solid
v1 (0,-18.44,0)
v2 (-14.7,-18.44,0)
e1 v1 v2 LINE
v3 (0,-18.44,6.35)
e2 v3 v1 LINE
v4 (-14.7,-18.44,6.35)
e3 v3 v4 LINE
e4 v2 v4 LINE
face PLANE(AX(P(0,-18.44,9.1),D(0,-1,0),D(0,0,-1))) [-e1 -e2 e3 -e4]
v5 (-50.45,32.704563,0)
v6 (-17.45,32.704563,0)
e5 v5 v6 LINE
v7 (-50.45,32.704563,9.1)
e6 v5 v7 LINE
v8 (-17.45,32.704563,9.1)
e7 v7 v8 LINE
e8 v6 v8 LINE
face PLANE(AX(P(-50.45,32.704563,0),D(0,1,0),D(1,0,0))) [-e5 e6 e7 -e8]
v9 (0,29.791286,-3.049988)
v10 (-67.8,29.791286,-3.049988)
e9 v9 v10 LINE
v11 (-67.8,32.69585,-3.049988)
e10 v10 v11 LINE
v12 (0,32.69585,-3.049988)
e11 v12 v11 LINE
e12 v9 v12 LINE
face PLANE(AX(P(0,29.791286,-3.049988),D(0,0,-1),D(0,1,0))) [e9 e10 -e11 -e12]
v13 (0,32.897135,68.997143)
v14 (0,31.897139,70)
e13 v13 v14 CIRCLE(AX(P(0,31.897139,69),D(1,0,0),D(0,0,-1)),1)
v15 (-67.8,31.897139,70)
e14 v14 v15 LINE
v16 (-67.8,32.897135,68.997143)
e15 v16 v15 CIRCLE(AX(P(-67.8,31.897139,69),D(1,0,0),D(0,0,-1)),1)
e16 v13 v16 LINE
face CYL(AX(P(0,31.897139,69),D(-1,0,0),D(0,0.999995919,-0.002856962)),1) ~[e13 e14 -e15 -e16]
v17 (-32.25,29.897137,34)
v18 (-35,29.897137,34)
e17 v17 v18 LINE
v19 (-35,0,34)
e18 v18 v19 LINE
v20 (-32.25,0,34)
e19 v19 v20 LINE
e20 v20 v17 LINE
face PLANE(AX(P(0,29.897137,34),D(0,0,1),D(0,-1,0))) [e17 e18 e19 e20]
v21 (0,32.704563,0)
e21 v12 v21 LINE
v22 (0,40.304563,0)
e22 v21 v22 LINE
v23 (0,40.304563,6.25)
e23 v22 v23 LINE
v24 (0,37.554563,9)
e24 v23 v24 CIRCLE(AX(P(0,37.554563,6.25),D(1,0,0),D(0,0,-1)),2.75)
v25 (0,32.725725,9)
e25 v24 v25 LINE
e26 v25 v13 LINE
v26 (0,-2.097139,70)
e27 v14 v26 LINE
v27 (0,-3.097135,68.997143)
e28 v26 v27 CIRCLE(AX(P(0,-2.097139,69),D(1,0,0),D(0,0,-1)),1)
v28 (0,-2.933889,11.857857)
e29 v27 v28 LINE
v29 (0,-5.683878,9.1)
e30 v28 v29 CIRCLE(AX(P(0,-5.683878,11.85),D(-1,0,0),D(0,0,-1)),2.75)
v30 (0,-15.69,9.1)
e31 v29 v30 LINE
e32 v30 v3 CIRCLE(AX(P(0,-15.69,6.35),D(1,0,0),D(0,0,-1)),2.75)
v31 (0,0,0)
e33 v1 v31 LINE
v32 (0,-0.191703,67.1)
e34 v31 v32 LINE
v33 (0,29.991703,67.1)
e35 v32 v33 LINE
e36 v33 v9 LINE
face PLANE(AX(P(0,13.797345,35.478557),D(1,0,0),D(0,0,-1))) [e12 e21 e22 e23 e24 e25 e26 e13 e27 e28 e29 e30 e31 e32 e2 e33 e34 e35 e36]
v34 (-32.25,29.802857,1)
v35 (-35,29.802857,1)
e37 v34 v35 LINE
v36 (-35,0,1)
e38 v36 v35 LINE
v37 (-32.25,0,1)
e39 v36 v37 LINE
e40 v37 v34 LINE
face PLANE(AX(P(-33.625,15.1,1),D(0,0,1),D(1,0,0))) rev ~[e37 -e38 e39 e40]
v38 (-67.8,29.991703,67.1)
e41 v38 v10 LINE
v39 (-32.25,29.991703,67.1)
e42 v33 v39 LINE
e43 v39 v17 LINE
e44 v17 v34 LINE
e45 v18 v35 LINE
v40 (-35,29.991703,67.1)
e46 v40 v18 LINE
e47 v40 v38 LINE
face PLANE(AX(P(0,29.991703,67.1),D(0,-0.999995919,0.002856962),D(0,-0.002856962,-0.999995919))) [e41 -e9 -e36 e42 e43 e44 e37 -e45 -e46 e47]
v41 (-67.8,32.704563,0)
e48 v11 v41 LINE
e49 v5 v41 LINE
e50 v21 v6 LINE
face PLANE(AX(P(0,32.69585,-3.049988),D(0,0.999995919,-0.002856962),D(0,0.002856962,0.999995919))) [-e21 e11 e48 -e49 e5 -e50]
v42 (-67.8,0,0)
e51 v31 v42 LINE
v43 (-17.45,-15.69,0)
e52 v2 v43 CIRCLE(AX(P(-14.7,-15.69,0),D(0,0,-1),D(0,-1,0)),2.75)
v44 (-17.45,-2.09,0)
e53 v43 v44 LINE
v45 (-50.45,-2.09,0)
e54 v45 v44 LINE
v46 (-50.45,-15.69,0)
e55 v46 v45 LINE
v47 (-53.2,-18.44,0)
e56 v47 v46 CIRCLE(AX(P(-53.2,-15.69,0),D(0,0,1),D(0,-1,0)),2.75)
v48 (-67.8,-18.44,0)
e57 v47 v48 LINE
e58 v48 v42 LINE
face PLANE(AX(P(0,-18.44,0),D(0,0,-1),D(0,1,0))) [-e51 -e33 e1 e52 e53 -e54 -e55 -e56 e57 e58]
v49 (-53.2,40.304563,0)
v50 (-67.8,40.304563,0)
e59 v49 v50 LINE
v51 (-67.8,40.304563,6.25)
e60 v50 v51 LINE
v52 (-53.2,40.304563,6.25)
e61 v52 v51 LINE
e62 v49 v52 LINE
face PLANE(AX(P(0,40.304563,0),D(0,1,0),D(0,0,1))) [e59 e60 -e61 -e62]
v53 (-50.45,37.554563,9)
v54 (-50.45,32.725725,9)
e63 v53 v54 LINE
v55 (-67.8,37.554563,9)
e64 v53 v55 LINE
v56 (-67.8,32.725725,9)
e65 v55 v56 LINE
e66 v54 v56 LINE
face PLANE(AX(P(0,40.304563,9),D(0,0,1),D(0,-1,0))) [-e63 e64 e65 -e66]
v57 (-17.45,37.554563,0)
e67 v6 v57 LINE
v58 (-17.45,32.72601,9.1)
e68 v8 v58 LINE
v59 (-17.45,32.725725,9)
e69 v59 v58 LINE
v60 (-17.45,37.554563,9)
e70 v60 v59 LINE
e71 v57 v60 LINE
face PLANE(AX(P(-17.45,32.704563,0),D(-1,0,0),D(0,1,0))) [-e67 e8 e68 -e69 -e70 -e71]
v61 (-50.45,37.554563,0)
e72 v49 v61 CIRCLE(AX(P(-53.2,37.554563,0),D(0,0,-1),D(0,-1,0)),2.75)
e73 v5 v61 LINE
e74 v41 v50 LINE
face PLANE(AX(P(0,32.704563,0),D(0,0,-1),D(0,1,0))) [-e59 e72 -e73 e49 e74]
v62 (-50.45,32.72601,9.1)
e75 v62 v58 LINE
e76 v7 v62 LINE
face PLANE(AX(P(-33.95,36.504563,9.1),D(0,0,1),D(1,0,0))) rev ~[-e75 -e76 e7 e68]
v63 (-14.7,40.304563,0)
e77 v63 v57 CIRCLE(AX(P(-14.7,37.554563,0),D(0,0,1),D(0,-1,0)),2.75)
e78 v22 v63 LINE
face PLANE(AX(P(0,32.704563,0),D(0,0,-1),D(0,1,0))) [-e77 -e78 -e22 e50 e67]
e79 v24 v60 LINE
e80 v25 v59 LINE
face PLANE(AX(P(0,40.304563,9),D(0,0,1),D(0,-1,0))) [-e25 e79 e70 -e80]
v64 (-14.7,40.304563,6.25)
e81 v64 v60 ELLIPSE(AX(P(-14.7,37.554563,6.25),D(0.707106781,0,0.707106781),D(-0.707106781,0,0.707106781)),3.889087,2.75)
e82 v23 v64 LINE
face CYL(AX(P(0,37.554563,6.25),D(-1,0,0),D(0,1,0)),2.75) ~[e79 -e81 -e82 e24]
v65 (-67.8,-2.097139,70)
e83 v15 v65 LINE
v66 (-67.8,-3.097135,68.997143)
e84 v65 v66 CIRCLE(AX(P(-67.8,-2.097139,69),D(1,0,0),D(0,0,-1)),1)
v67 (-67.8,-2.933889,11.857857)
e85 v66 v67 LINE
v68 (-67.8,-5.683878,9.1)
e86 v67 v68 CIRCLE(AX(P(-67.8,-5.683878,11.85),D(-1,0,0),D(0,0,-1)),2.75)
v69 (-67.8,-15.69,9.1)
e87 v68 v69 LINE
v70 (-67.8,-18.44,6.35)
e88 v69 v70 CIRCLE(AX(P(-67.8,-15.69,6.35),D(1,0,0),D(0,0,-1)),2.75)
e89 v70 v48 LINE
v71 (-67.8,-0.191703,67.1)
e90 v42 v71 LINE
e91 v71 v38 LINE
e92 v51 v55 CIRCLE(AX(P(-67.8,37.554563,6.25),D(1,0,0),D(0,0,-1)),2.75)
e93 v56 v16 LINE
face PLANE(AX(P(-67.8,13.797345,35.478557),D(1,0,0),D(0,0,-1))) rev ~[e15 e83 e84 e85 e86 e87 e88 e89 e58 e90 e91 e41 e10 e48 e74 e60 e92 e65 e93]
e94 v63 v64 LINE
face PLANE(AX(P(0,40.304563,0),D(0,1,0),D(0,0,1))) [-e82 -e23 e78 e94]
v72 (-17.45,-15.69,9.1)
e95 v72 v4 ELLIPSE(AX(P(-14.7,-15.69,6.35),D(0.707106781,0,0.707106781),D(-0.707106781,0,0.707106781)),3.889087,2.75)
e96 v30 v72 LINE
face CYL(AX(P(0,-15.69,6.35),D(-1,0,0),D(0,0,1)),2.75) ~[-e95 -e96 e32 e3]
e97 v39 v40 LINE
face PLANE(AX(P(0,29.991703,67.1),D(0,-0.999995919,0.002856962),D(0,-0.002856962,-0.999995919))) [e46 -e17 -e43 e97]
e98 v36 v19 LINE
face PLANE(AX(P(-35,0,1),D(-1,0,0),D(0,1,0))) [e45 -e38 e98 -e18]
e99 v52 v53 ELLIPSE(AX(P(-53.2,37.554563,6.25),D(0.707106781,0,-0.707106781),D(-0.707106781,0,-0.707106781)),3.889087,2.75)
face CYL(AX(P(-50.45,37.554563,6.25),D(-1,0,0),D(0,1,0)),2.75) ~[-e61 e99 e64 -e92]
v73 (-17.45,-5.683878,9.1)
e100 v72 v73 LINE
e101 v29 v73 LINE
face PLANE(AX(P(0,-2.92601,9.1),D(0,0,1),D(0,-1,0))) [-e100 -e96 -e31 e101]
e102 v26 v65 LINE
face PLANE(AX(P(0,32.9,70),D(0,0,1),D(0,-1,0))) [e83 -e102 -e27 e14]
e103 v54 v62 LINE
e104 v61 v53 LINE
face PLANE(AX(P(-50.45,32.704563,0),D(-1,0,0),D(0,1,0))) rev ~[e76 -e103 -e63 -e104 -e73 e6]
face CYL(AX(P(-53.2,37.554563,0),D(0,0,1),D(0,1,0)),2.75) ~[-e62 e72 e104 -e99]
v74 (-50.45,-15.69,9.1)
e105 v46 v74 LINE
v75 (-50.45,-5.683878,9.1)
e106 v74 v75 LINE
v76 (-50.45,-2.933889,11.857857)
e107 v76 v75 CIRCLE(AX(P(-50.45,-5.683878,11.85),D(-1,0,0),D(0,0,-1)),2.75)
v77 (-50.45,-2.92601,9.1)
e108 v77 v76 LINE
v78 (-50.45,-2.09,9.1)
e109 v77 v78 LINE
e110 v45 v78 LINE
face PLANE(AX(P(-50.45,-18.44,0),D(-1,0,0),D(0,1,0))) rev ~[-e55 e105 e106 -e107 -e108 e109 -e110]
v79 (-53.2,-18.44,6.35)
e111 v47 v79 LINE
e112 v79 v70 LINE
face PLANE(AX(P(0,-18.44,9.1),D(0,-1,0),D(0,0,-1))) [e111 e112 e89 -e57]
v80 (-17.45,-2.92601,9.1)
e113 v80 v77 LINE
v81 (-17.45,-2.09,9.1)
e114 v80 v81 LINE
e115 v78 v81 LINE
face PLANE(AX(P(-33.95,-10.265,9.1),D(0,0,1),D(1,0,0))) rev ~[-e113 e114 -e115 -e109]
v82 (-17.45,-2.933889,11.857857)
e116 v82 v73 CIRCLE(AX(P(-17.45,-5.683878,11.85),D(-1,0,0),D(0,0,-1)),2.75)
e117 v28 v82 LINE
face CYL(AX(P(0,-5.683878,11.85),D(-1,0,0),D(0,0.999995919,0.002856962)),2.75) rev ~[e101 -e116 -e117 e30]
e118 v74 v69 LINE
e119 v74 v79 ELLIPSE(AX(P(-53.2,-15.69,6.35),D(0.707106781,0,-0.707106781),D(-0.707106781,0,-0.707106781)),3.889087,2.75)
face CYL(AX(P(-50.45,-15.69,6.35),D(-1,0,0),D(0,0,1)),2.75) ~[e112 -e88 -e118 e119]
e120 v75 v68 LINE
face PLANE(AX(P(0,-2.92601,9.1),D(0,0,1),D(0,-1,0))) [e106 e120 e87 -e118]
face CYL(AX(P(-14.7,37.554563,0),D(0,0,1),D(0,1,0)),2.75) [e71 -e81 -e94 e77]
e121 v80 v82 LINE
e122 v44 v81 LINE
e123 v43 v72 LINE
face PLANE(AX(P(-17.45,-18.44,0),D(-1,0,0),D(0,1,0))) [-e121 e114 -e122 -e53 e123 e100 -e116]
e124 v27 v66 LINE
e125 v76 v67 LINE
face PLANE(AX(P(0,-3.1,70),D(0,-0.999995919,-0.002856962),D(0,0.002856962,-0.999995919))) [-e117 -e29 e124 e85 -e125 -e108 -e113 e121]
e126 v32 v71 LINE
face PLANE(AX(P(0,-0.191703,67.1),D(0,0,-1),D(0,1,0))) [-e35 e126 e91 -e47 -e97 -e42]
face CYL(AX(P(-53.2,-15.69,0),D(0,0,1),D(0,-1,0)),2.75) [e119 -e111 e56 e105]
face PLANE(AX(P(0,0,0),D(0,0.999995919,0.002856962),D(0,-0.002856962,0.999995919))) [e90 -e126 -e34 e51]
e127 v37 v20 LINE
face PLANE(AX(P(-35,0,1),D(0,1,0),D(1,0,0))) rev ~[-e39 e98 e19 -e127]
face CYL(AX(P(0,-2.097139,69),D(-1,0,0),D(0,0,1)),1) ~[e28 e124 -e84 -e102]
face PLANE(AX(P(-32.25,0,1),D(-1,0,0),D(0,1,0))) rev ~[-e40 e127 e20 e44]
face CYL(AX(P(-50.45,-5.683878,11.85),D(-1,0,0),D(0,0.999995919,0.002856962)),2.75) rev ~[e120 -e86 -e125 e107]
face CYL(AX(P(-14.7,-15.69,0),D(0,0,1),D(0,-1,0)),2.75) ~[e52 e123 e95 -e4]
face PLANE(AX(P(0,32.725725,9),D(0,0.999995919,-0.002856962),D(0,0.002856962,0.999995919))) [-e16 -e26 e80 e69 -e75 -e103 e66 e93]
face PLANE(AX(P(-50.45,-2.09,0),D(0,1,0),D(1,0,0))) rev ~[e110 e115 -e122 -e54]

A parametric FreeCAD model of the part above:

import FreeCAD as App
import Part
import Sketcher
Q = App.Units.Quantity


def edges_at(feature, points):
    """Names of the edges that pass closest to the given points."""
    edges = feature.Shape.Edges
    near = lambda p: min(range(len(edges)), key=lambda i: edges[i].distToShape(Part.Vertex(*p))[0])
    return sorted({f"Edge{near(p) + 1}" for p in points})


def add_polygon(sketch, points):
    """Adds a closed chain of lines whose ends are joined by coincident constraints."""
    first, n = sketch.GeometryCount, len(points)
    for a, b in zip(points, points[1:] + points[:1]):
        sketch.addGeometry(Part.LineSegment(App.Vector(*a, 0), App.Vector(*b, 0)), False)
    for i in range(n):
        sketch.addConstraint(Sketcher.Constraint("Coincident", first + i, 2, first + (i + 1) % n, 1))

doc = App.newDocument("Part")
body = doc.addObject("PartDesign::Body", "Body")

# Sketch on YZ plane
sketch1 = body.newObject("Sketcher::SketchObject", "Sketch")
sketch1.AttachmentSupport = (doc.getObject("YZ_Plane"), [""])
sketch1.MapMode = "FlatFace"
add_polygon(sketch1, [(29.991703, 67.1), (29.791286, -3.049988), (32.69585, -3.049988), (32.704563, 0), (40.304563, 0), (40.304563, 9), (32.725725, 9), (32.9, 70), (-3.1, 70), (-2.92601, 9.1), (-18.44, 9.1), (-18.44, 0), (0, 0), (-0.191703, 67.1)])  # lines 0-13
sketch1.addConstraint([
    Sketcher.Constraint("Horizontal", 1),
    Sketcher.Constraint("Horizontal", 3),
    Sketcher.Constraint("Vertical", 4),
    Sketcher.Constraint("Horizontal", 5),
    Sketcher.Constraint("Horizontal", 7),
    Sketcher.Constraint("Horizontal", 9),
    Sketcher.Constraint("Vertical", 10),
    Sketcher.Constraint("Horizontal", 11),
    Sketcher.Constraint("Horizontal", 13),
    Sketcher.Constraint("Coincident", 11, 2, -1, 1),
    Sketcher.Constraint("PointOnObject", 2, 2, -1),
    Sketcher.Constraint("Parallel", 0, 2),
    Sketcher.Constraint("Parallel", 2, 6),
    Sketcher.Constraint("Parallel", 8, 12),
    Sketcher.Constraint("DistanceX", 7, 2, 7, 1, Q("36 mm")),
    Sketcher.Constraint("DistanceY", 4, 1, 4, 2, Q("9 mm")),
    Sketcher.Constraint("DistanceX", 3, 1, 3, 2, Q("7.6 mm")),
    Sketcher.Constraint("DistanceY", 10, 2, 10, 1, Q("9.1 mm")),
    Sketcher.Constraint("DistanceY", -1, 1, 6, 2, Q("70 mm")),
    Sketcher.Constraint("DistanceY", 8, 2, 12, 2, Q("58 mm")),
    Sketcher.Constraint("DistanceX", 11, 1, 11, 2, Q("18.44 mm")),
    Sketcher.Constraint("DistanceX", -1, 1, 6, 2, Q("32.9 mm")),
    Sketcher.Constraint("Distance", 2, Q("3.05 mm")),
    Sketcher.Constraint("DistanceX", 5, 2, 5, 1, Q("7.578839 mm")),
    Sketcher.Constraint("DistanceX", 9, 2, 9, 1, Q("15.51399 mm")),
    Sketcher.Constraint("DistanceX", 1, 1, 1, 2, Q("2.904563 mm")),
    Sketcher.Constraint("DistanceX", 13, 1, 13, 2, Q("30.183406 mm")),
])
pad1 = body.newObject("PartDesign::Pad", "Pad")
pad1.Profile = sketch1
pad1.Length = 67.8
pad1.Reversed = True

# Sketch on XY plane
sketch2 = body.newObject("Sketcher::SketchObject", "Sketch001")
sketch2.AttachmentSupport = (doc.getObject("XY_Plane"), [""])
sketch2.MapMode = "FlatFace"
add_polygon(sketch2, [(-50.45, 40.304563), (-50.45, 32.704563), (-17.45, 32.704563), (-17.45, 40.304563)])  # lines 0-3
add_polygon(sketch2, [(-50.45, -2.09), (-50.45, -18.44), (-17.45, -18.44), (-17.45, -2.09)])  # lines 4-7
sketch2.addConstraint([
    Sketcher.Constraint("Vertical", 0),
    Sketcher.Constraint("Horizontal", 1),
    Sketcher.Constraint("Vertical", 2),
    Sketcher.Constraint("Horizontal", 3),
    Sketcher.Constraint("Vertical", 4),
    Sketcher.Constraint("Horizontal", 5),
    Sketcher.Constraint("Vertical", 6),
    Sketcher.Constraint("Horizontal", 7),
    Sketcher.Constraint("Vertical", 3, 2, 4, 2),
    Sketcher.Constraint("Vertical", 2, 2, 5, 2),
    Sketcher.Constraint("DistanceX", 1, 1, 1, 2, Q("33 mm")),
    Sketcher.Constraint("DistanceY", 0, 2, 0, 1, Q("7.6 mm")),
    Sketcher.Constraint("DistanceY", 4, 2, 4, 1, Q("16.35 mm")),
    Sketcher.Constraint("DistanceX", 0, 2, -1, 1, Q("50.45 mm")),
    Sketcher.Constraint("DistanceY", 4, 2, -1, 1, Q("18.44 mm")),
    Sketcher.Constraint("DistanceY", -1, 1, 0, 2, Q("32.704563 mm")),
])
pocket1 = body.newObject("PartDesign::Pocket", "Pocket")
pocket1.Profile = sketch2
pocket1.Length = 9.1
pocket1.Reversed = True

# Sketch on XY plane
sketch3 = body.newObject("Sketcher::SketchObject", "Sketch002")
sketch3.AttachmentSupport = (doc.getObject("XY_Plane"), [""])
sketch3.MapMode = "FlatFace"
sketch3.AttachmentOffset = App.Placement(App.Vector(0, 0, 1), App.Rotation())
add_polygon(sketch3, [(-35, 30.2), (-35, 0), (-32.25, 0), (-32.25, 30.2)])  # lines 0-3
sketch3.addConstraint([
    Sketcher.Constraint("Vertical", 0),
    Sketcher.Constraint("Horizontal", 1),
    Sketcher.Constraint("Vertical", 2),
    Sketcher.Constraint("Horizontal", 3),
    Sketcher.Constraint("PointOnObject", 0, 2, -1),
    Sketcher.Constraint("DistanceY", 0, 2, 0, 1, Q("30.2 mm")),
    Sketcher.Constraint("DistanceX", 0, 2, -1, 1, Q("35 mm")),
    Sketcher.Constraint("DistanceX", 1, 1, 1, 2, Q("2.75 mm")),
])
pad2 = body.newObject("PartDesign::Pad", "Pad001")
pad2.Profile = sketch3
pad2.Length = 66.1
doc.recompute()

fillet = body.newObject("PartDesign::Fillet", "Fillet")
fillet.Base = (pad2, edges_at(pad2, [
    (-59.125, -18.44, 9.1),
    (-59.125, -2.926, 9.1),
    (-59.125, 40.305, 9),
    (-8.725, 40.305, 9),
    (-17.45, 40.305, 4.5),
    (-50.45, 40.305, 4.5),
    (-8.725, -2.926, 9.1),
    (-8.725, -18.44, 9.1),
    (-17.45, -18.44, 4.55),
    (-50.45, -18.44, 4.55),
]))
fillet.Radius = 2.75
doc.recompute()

fillet2 = body.newObject("PartDesign::Fillet", "Fillet001")
fillet2.Base = (fillet, edges_at(fillet, [(-33.9, -3.1, 70), (-33.9, 32.9, 70)]))
fillet2.Radius = 1

# Sketch on YZ plane
sketch4 = body.newObject("Sketcher::SketchObject", "Sketch003")
sketch4.AttachmentSupport = (doc.getObject("YZ_Plane"), [""])
sketch4.MapMode = "FlatFace"
add_polygon(sketch4, [(29.897137, 34), (29.991703, 67.1), (-0.191703, 67.1), (-0.097137, 34)])  # lines 0-3
sketch4.addConstraint([
    Sketcher.Constraint("Horizontal", 1),
    Sketcher.Constraint("Horizontal", 3),
    Sketcher.Constraint("Equal", 0, 2),
    Sketcher.Constraint("DistanceY", -1, 1, 2, 2, Q("34 mm")),
    Sketcher.Constraint("DistanceY", -1, 1, 0, 2, Q("67.1 mm")),
    Sketcher.Constraint("DistanceX", 1, 2, 1, 1, Q("30.183406 mm")),
    Sketcher.Constraint("DistanceX", 3, 1, 3, 2, Q("29.994274 mm")),
    Sketcher.Constraint("DistanceX", -1, 1, 0, 2, Q("29.991703 mm")),
])
pocket2 = body.newObject("PartDesign::Pocket", "Pocket001")
pocket2.Profile = sketch4
pocket2.Length = 35

doc.recompute()
